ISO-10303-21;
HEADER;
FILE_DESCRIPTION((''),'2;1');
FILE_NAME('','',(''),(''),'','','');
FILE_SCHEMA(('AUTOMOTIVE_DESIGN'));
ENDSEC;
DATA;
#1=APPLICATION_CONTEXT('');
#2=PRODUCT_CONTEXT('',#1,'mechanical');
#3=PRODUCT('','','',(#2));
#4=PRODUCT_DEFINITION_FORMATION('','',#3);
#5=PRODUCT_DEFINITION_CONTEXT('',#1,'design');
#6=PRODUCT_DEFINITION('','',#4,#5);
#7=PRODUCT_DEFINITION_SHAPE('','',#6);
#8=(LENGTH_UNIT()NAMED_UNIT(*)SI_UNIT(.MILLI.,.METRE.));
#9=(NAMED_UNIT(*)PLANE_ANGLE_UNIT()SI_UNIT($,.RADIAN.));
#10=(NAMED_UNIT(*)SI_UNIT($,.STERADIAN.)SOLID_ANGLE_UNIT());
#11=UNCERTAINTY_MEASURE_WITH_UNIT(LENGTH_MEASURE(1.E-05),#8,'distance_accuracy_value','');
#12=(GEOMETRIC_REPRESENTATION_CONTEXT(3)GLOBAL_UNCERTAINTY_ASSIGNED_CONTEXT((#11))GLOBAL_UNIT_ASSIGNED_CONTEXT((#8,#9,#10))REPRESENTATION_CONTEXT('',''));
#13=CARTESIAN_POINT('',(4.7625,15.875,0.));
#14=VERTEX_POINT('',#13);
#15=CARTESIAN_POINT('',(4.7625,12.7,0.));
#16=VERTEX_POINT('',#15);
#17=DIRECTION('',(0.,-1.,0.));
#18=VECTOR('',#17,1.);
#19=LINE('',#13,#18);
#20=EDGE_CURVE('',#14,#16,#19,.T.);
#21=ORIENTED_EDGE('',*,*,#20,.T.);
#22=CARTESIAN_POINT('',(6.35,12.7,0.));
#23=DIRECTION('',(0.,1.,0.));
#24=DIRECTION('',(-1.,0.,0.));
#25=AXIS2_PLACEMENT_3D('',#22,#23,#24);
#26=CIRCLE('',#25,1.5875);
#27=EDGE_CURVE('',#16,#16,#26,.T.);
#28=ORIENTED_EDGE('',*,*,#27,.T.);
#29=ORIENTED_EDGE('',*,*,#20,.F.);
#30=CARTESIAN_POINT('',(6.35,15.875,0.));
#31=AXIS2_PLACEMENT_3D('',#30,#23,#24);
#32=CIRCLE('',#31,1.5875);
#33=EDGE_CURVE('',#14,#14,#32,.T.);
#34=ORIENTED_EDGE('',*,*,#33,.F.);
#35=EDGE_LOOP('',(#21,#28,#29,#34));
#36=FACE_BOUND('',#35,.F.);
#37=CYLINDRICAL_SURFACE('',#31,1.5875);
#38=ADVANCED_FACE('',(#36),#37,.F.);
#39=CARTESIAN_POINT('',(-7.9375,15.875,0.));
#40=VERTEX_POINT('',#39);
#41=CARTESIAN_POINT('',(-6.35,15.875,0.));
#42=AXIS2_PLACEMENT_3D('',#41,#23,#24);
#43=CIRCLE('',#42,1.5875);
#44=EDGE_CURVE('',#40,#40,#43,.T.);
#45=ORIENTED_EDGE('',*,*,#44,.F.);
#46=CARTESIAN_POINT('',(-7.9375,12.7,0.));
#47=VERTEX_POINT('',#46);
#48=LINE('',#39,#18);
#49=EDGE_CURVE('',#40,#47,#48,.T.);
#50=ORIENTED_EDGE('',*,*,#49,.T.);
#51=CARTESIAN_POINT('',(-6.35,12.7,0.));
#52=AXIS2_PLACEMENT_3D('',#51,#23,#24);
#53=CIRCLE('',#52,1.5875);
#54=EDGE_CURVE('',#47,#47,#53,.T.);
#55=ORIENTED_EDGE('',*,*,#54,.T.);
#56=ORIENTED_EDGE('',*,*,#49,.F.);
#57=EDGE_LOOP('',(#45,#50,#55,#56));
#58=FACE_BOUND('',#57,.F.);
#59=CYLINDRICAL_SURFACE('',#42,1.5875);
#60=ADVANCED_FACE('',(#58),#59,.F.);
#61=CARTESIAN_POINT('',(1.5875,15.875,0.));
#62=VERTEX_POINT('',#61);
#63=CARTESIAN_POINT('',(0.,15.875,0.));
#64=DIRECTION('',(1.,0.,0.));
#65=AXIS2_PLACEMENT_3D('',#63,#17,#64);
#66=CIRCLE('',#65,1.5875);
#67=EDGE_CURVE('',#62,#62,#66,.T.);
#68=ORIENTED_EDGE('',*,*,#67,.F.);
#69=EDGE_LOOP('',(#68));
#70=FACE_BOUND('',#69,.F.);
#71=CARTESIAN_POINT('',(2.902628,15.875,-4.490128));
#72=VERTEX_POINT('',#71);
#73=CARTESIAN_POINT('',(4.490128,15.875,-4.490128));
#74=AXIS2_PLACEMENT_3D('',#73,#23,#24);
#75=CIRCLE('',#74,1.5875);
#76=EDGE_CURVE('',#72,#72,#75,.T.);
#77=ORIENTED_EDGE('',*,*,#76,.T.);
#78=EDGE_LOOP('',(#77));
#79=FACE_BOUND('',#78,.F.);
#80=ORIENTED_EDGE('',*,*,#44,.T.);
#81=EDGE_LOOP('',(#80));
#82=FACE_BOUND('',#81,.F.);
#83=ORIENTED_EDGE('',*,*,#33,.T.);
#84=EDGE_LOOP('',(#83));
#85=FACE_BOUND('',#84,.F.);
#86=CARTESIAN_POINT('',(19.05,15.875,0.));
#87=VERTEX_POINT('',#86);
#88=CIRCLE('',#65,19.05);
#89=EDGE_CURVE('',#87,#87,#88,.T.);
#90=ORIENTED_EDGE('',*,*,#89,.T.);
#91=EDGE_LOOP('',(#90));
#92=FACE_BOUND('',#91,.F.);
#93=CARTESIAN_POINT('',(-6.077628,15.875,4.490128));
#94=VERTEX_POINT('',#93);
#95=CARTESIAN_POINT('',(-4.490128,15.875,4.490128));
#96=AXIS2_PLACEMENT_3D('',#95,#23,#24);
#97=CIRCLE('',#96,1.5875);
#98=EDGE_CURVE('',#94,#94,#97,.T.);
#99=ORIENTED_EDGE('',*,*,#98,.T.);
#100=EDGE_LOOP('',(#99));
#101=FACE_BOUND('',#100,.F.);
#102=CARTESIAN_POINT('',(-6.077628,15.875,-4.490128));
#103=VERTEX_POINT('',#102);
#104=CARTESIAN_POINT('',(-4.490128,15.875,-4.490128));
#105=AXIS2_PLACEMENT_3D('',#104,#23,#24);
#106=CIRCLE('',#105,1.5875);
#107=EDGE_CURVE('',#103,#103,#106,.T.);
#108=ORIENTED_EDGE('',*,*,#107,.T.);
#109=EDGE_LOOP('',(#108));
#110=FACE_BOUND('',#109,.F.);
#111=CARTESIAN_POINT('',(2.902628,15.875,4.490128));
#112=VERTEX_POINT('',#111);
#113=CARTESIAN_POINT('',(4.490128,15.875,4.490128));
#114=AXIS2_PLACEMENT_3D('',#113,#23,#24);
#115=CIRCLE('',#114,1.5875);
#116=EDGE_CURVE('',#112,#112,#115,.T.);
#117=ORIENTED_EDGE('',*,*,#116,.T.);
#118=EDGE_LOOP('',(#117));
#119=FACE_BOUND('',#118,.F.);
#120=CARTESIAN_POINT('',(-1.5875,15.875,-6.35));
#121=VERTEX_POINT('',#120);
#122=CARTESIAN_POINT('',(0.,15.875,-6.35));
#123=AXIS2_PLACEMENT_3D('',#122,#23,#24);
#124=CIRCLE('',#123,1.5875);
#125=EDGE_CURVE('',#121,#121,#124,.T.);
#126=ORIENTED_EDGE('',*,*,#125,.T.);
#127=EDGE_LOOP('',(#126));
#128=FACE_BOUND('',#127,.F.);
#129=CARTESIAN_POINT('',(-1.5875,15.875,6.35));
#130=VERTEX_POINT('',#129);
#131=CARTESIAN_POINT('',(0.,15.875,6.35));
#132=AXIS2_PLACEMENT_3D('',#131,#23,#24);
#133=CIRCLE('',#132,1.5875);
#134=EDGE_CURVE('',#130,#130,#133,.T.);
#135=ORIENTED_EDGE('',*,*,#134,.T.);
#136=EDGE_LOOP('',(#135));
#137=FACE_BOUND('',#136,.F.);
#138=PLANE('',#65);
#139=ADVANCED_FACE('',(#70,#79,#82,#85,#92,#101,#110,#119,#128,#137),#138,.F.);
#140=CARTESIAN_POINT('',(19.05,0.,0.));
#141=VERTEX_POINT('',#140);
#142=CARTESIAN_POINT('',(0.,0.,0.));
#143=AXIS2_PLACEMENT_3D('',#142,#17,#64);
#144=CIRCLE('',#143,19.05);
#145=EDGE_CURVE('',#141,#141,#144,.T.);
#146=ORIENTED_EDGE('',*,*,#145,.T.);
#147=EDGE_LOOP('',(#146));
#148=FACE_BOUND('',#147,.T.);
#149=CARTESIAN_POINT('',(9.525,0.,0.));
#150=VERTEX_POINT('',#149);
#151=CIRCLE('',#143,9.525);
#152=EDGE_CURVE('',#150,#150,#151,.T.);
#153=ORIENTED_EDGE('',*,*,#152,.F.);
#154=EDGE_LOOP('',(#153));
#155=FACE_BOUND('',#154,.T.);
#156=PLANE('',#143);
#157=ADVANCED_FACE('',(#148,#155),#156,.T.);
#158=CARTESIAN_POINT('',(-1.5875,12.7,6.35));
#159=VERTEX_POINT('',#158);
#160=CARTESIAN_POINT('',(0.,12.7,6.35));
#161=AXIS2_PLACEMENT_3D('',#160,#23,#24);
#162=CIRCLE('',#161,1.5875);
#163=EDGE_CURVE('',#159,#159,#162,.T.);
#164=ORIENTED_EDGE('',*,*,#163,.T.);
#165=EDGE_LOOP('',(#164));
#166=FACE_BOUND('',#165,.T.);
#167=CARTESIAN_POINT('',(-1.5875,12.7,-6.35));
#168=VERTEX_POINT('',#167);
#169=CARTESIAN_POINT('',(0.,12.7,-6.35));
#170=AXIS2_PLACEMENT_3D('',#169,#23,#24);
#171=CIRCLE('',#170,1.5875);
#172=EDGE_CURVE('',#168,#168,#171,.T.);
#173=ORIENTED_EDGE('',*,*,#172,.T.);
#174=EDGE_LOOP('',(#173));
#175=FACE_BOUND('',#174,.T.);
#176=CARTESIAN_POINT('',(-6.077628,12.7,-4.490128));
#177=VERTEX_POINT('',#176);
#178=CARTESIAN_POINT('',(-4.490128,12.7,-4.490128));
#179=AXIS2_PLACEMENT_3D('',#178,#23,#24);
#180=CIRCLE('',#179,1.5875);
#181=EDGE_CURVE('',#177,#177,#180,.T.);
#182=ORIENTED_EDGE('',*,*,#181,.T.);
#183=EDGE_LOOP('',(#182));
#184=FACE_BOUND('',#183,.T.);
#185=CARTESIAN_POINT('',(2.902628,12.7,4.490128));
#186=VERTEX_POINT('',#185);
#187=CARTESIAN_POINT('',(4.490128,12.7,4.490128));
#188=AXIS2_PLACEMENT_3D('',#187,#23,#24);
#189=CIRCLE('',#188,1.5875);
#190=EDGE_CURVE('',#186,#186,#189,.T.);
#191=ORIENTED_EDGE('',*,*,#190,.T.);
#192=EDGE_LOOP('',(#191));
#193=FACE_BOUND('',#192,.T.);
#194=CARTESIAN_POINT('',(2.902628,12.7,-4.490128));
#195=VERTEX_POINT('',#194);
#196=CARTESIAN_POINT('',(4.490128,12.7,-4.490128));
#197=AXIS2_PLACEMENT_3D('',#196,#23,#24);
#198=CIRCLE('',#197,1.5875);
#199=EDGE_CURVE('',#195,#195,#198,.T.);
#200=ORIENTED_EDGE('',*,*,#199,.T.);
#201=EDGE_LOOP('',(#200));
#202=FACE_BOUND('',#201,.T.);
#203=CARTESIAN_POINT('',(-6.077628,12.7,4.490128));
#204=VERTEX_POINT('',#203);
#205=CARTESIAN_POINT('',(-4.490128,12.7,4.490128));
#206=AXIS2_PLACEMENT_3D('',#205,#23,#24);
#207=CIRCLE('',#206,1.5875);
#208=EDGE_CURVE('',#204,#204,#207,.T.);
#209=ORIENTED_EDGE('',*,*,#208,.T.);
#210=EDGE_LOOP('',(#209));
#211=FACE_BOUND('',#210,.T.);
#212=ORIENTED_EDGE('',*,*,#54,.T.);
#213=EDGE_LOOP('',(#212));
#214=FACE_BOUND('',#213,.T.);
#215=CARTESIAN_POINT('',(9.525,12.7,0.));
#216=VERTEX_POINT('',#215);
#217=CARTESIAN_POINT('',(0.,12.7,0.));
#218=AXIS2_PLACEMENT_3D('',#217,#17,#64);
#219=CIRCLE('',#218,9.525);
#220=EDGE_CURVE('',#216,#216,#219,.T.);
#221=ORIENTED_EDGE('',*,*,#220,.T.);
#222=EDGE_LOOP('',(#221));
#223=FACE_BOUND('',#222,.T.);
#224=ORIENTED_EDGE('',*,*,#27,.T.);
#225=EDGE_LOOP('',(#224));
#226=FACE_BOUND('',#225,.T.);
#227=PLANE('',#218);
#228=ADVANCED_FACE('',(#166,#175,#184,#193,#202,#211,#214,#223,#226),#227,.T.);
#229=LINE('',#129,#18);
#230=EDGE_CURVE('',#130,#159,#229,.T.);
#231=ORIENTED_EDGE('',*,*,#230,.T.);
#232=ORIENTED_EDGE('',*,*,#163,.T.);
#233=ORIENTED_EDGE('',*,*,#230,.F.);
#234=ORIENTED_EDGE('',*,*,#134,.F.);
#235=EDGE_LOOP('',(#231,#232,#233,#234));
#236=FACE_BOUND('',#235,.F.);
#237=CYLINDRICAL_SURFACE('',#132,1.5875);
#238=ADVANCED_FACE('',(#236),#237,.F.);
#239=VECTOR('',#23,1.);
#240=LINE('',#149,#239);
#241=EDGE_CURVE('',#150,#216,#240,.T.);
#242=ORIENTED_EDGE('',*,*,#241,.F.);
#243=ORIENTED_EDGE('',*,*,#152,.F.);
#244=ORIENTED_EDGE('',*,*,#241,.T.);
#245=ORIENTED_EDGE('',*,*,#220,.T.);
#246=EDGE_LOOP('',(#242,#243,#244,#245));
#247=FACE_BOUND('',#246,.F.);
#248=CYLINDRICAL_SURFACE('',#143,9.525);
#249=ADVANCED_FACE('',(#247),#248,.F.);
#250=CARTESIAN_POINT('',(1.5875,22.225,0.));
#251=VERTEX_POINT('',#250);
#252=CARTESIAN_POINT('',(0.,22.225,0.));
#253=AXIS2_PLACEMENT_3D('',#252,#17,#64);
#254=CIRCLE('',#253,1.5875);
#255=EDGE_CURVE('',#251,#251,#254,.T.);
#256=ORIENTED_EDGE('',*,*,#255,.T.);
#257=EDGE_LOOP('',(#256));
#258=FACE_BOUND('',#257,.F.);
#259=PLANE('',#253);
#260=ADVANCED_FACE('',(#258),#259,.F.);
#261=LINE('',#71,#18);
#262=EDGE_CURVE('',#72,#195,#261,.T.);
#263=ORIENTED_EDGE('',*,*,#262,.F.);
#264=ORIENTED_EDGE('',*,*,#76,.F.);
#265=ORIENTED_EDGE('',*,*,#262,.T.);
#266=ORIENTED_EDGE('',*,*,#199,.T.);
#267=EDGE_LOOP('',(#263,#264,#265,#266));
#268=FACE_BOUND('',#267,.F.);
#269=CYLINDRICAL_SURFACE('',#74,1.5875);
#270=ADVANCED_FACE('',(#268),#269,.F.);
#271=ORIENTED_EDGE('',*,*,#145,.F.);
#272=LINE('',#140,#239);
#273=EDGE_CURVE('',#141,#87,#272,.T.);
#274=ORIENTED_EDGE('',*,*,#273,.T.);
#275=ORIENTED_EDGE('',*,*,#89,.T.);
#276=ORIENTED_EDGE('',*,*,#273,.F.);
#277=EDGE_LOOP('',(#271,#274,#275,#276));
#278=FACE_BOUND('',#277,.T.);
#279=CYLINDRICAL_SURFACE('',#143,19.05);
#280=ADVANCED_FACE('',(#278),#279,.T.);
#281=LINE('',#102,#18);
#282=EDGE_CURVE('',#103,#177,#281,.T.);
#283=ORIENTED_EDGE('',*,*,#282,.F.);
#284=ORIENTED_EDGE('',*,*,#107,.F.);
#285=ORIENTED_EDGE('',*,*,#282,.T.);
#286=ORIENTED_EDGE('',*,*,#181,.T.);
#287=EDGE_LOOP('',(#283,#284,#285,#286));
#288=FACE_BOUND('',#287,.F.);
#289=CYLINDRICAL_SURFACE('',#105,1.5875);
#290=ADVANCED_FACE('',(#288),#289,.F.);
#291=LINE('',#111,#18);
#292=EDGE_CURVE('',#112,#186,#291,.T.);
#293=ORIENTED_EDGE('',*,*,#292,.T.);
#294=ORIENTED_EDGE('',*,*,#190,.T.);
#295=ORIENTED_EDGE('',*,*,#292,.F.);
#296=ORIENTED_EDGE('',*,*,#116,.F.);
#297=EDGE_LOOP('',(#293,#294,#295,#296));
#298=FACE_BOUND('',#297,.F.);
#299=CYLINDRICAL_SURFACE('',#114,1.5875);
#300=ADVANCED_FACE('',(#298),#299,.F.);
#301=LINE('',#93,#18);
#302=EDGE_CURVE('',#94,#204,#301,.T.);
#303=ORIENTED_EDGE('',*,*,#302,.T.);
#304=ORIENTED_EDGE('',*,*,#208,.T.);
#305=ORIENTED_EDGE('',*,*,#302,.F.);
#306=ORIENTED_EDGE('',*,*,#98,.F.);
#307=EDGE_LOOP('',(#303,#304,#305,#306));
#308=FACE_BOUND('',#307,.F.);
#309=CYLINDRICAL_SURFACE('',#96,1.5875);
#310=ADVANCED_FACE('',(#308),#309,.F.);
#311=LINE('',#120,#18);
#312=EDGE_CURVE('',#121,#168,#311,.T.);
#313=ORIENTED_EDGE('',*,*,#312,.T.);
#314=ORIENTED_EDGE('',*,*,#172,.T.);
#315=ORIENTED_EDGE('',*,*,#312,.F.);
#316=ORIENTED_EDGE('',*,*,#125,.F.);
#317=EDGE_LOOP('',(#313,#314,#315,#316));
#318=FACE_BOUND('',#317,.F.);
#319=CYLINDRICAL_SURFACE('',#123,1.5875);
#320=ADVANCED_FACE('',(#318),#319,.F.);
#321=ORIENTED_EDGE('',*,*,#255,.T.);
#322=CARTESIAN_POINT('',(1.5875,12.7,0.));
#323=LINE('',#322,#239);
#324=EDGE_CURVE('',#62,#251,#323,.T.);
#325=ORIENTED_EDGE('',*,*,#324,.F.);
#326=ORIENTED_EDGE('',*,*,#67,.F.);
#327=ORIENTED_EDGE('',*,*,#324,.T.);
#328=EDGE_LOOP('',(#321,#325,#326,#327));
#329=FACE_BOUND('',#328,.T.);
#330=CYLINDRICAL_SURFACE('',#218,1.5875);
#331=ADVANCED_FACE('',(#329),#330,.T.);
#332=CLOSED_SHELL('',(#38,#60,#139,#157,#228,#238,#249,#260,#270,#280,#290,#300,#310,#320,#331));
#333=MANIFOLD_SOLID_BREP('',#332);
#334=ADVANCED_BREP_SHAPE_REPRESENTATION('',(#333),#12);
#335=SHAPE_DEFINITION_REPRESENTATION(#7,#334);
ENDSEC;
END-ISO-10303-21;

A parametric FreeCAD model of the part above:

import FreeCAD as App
import Part
import Sketcher
Q = App.Units.Quantity

doc = App.newDocument("Part")
body = doc.addObject("PartDesign::Body", "Body")

sketch1 = doc.addObject("Sketcher::SketchObject", "Sketch")
body.addObject(sketch1)
sketch1.AttachmentSupport = (doc.XZ_Plane, [""])
sketch1.MapMode = "FlatFace"
sketch1.addGeometry(Part.Circle(App.Vector(0, 0, 0), App.Vector(0, 0, 1), 19), False)
sketch1.addConstraint([
    Sketcher.Constraint("Coincident", 0, 3, -1, 1),
    Sketcher.Constraint("Diameter", 0, Q("1.5 in")),
])
pad1 = doc.addObject("PartDesign::Pad", "Pad")
body.addObject(pad1)
pad1.Profile = sketch1
pad1.Length = Q("0.625 in")
pad1.Reversed = True

sketch2 = doc.addObject("Sketcher::SketchObject", "Sketch001")
body.addObject(sketch2)
sketch2.AttachmentSupport = (doc.XZ_Plane, [""])
sketch2.MapMode = "FlatFace"
sketch2.addGeometry(Part.Circle(App.Vector(0, 0, 0), App.Vector(0, 0, 1), 10), False)
sketch2.addConstraint([
    Sketcher.Constraint("Coincident", 0, 3, -1, 1),
    Sketcher.Constraint("Diameter", 0, Q("0.75 in")),
])
pocket1 = doc.addObject("PartDesign::Pocket", "Pocket")
body.addObject(pocket1)
pocket1.Profile = sketch2
pocket1.Length = Q("0.5 in")

sketch3 = doc.addObject("Sketcher::SketchObject", "Sketch002")
body.addObject(sketch3)
sketch3.AttachmentSupport = (doc.XZ_Plane, [""])
sketch3.MapMode = "FlatFace"
sketch3.AttachmentOffset = App.Placement(App.Vector(0, 0, -0.5 * 25.4), App.Rotation())
sketch3.addGeometry(Part.Circle(App.Vector(0, 0, 0), App.Vector(0, 0, 1), 1.6), False)
sketch3.addConstraint([
    Sketcher.Constraint("Coincident", 0, 3, -1, 1),
    Sketcher.Constraint("Diameter", 0, Q("0.125 in")),
])
pad2 = doc.addObject("PartDesign::Pad", "Pad001")
body.addObject(pad2)
pad2.Profile = sketch3
pad2.Length = Q("0.375 in")
pad2.Reversed = True

sketch4 = doc.addObject("Sketcher::SketchObject", "Sketch003")
body.addObject(sketch4)
sketch4.AttachmentSupport = (doc.XZ_Plane, [""])
sketch4.MapMode = "FlatFace"
sketch4.AttachmentOffset = App.Placement(App.Vector(0, 0, -0.625 * 25.4), App.Rotation())
sketch4.addGeometry([
    Part.Circle(App.Vector(0, 6.3, 0), App.Vector(0, 0, 1), 1.6),
    Part.Circle(App.Vector(4.5, 4.5, 0), App.Vector(0, 0, 1), 1.6),
    Part.Circle(App.Vector(6.3, 0, 0), App.Vector(0, 0, 1), 1.6),
    Part.Circle(App.Vector(4.5, -4.5, 0), App.Vector(0, 0, 1), 1.6),
    Part.Circle(App.Vector(0, -6.3, 0), App.Vector(0, 0, 1), 1.6),
    Part.Circle(App.Vector(-4.5, -4.5, 0), App.Vector(0, 0, 1), 1.6),
    Part.Circle(App.Vector(-6.3, 0, 0), App.Vector(0, 0, 1), 1.6),
    Part.Circle(App.Vector(-4.5, 4.5, 0), App.Vector(0, 0, 1), 1.6),
], False)
sketch4.addConstraint([
    Sketcher.Constraint("Equal", 0, 1),
    Sketcher.Constraint("Equal", 1, 2),
    Sketcher.Constraint("Equal", 2, 3),
    Sketcher.Constraint("Equal", 3, 4),
    Sketcher.Constraint("Equal", 4, 5),
    Sketcher.Constraint("Equal", 5, 6),
    Sketcher.Constraint("Equal", 6, 7),
    Sketcher.Constraint("Symmetric", 0, 3, 4, 3, -1, 1),
    Sketcher.Constraint("Symmetric", 1, 3, 5, 3, -1, 1),
    Sketcher.Constraint("Symmetric", 2, 3, 6, 3, -1, 1),
    Sketcher.Constraint("Symmetric", 3, 3, 7, 3, -1, 1),
    Sketcher.Constraint("Symmetric", 3, 3, 5, 3, -2),
    Sketcher.Constraint("PointOnObject", 0, 3, -2),
    Sketcher.Constraint("PointOnObject", 2, 3, -1),
    Sketcher.Constraint("Diameter", 0, Q("0.125 in")),
    Sketcher.Constraint("DistanceY", 4, 3, 0, 3, Q("0.5 in")),
    Sketcher.Constraint("DistanceX", -1, 1, 2, 3, Q("0.25 in")),
    Sketcher.Constraint("DistanceX", -1, 1, 1, 3, Q("4.490128 mm")),
    Sketcher.Constraint("DistanceY", -1, 1, 1, 3, Q("4.490128 mm")),
])
pocket2 = doc.addObject("PartDesign::Pocket", "Pocket001")
body.addObject(pocket2)
pocket2.Profile = sketch4
pocket2.Length = Q("1 in")
pocket2.Reversed = True

doc.recompute()
